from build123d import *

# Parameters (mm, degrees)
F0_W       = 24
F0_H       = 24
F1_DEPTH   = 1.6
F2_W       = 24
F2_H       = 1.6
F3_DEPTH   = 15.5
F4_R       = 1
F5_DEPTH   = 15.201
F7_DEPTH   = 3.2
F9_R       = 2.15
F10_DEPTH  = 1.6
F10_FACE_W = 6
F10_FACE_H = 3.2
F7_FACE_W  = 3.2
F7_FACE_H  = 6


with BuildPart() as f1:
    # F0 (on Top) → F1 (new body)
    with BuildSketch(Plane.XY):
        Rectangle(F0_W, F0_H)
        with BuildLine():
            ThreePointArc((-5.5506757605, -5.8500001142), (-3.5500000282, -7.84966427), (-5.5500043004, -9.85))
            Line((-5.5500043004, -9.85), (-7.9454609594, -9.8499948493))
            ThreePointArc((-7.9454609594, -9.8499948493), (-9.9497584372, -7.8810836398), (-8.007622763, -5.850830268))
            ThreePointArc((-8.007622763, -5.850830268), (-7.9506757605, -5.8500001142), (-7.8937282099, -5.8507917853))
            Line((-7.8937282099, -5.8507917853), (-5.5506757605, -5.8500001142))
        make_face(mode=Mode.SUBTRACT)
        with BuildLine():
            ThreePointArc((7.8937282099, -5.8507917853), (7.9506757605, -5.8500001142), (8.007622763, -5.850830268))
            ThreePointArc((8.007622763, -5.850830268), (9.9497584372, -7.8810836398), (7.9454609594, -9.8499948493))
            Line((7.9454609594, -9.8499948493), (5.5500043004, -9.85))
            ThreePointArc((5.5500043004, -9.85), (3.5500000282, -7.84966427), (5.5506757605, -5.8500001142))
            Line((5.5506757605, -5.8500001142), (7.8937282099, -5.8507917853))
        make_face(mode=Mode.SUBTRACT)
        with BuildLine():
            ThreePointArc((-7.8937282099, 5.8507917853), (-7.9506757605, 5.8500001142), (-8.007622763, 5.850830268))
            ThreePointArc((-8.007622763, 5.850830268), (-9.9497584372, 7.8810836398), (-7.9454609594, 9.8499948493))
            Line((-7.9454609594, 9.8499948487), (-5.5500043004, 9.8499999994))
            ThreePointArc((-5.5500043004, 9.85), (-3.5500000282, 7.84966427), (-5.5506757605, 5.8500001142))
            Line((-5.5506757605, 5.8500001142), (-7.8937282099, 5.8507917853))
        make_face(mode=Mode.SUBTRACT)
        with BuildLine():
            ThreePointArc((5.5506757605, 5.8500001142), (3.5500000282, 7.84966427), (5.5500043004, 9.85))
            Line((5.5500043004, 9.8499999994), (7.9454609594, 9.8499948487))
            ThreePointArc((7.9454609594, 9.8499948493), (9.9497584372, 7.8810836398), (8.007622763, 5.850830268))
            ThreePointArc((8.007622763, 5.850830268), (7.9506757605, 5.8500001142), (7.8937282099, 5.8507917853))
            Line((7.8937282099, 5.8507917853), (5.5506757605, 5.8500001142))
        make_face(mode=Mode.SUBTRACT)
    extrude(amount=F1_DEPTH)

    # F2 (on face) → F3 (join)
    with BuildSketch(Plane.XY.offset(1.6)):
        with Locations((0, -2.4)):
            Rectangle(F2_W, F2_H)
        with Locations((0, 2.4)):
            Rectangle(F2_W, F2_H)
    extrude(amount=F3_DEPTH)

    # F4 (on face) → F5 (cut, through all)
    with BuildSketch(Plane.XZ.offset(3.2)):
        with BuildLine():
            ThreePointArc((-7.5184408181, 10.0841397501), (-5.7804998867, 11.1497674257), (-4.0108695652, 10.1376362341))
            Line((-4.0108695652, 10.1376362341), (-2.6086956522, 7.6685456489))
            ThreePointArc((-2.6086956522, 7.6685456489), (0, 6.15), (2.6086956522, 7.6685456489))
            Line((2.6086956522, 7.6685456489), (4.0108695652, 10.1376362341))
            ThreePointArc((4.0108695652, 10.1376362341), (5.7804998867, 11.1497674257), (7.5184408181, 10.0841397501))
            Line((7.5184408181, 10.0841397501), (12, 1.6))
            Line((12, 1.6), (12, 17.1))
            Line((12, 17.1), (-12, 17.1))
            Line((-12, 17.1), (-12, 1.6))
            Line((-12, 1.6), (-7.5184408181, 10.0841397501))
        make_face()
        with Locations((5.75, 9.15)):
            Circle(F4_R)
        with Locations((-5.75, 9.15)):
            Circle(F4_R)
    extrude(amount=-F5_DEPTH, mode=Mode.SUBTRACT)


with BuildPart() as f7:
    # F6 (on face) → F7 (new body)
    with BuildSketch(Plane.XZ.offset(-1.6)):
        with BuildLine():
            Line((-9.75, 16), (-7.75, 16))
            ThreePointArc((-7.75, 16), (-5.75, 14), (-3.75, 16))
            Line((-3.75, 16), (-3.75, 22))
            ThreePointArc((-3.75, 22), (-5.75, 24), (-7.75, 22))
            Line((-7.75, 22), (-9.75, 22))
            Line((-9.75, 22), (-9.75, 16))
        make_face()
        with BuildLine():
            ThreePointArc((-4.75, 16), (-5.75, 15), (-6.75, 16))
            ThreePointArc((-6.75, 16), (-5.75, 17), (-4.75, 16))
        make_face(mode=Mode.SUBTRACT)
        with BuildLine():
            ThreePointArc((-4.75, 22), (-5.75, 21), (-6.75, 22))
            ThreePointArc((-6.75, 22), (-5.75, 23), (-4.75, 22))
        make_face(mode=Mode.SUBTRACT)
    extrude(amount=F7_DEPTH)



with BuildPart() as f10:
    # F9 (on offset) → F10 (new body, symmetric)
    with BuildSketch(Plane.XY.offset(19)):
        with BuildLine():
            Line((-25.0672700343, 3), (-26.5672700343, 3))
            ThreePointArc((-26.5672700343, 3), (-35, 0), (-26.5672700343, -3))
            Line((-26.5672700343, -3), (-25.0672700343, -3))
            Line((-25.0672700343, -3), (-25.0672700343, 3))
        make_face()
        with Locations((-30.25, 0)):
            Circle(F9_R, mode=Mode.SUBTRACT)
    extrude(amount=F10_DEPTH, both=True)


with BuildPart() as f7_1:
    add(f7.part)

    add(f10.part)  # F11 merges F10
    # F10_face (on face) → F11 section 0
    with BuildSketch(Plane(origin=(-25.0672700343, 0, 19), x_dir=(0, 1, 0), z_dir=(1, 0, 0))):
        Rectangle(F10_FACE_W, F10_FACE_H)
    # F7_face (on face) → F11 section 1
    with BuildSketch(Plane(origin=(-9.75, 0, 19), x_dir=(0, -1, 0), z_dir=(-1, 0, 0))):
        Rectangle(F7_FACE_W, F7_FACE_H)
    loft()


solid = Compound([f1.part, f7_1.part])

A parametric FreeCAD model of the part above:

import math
import FreeCAD as App
import Part
import Sketcher

V = App.Vector


def add_polygon(sketch, points):
    """Adds a closed chain of lines whose ends are joined by coincident constraints."""
    first, n = sketch.GeometryCount, len(points)
    for a, b in zip(points, points[1:] + points[:1]):
        sketch.addGeometry(Part.LineSegment(App.Vector(*a, 0), App.Vector(*b, 0)), False)
    for i in range(n):
        sketch.addConstraint(Sketcher.Constraint("Coincident", first + i, 2, first + (i + 1) % n, 1))

doc = App.newDocument("Part")
params = doc.addObject("Spreadsheet::Sheet", "Params")
for row, (alias, value) in enumerate([
    ("sketch1_radius", "2 mm"),
    ("sketch1_width", "24 mm"),
    ("pad1_length", "1.6 mm"),
    ("sketch2_width", "24 mm"),
    ("sketch2_height", "1.6 mm"),
    ("pad2_length", "15.5 mm"),
    ("sketch3_diameter", "2 mm"),
    ("sketch3_radius", "2 mm"),
    ("sketch3_radius2", "3 mm"),
    ("sketch3_width", "24 mm"),
    ("sketch3_height", "15.5 mm"),
    ("sketch4_diameter", "2 mm"),
    ("sketch4_radius", "2 mm"),
    ("sketch4_width", "2 mm"),
    ("sketch4_height", "6 mm"),
    ("pad3_length", "3.2 mm"),
    ("sketch5_diameter", "4.3 mm"),
    ("sketch5_height", "6 mm"),
    ("sketch5_radius", "4.75 mm"),
    ("sketch5_width", "1.5 mm"),
    ("pad4_length", "3.2 mm"),
    ("sketch6_width", "6 mm"),
    ("sketch6_height", "3.2 mm"),
    ("sketch7_height", "6 mm"),
    ("sketch7_width", "3.2 mm"),
], start=1):
    params.set(f"A{row}", alias)
    params.set(f"B{row}", "=" + value)
    params.setAlias(f"B{row}", alias)

body = doc.addObject("PartDesign::Body", "Body")

sketch1 = body.newObject("Sketcher::SketchObject", "Sketch")
sketch1.AttachmentSupport = (doc.getObject("XY_Plane"), [""])
sketch1.MapMode = "FlatFace"
add_polygon(sketch1, [(-12, 12), (-12, -12), (12, -12), (12, 12)])
sketch1.addGeometry(Part.LineSegment(V(-7.89, -5.85, 0), V(-5.55, -5.85, 0)), False)
sketch1.addGeometry(Part.ArcOfCircle(Part.Circle(V(-5.55, -7.85, 0), V(0, 0, 1), 2), math.radians(-90), math.radians(90)), False)
sketch1.addGeometry(Part.LineSegment(V(-5.55, -9.85, 0), V(-7.95, -9.85, 0)), False)
sketch1.addGeometry(Part.ArcOfCircle(Part.Circle(V(-7.95, -7.85, 0), V(0, 0, 1), 2), math.radians(92), math.radians(270)), False)
sketch1.addGeometry(Part.ArcOfCircle(Part.Circle(V(-7.95, -7.85, 0), V(0, 0, 1), 2), math.radians(88.39), math.radians(91.65)), False)
sketch1.addGeometry(Part.LineSegment(V(5.55, -5.85, 0), V(7.89, -5.85, 0)), False)
sketch1.addGeometry(Part.ArcOfCircle(Part.Circle(V(7.95, -7.85, 0), V(0, 0, 1), 2), math.radians(88.35), math.radians(91.61)), False)
sketch1.addGeometry(Part.ArcOfCircle(Part.Circle(V(7.95, -7.85, 0), V(0, 0, 1), 2), math.radians(-90), math.radians(88)), False)
sketch1.addGeometry(Part.LineSegment(V(7.95, -9.85, 0), V(5.55, -9.85, 0)), False)
sketch1.addGeometry(Part.ArcOfCircle(Part.Circle(V(5.55, -7.85, 0), V(0, 0, 1), 2), math.radians(90), math.radians(270)), False)
sketch1.addGeometry(Part.LineSegment(V(-5.55, 5.85, 0), V(-7.89, 5.85, 0)), False)
sketch1.addGeometry(Part.ArcOfCircle(Part.Circle(V(-7.95, 7.85, 0), V(0, 0, 1), 2), math.radians(-91.65), math.radians(-88.39)), False)
sketch1.addGeometry(Part.ArcOfCircle(Part.Circle(V(-7.95, 7.85, 0), V(0, 0, 1), 2), math.radians(90), math.radians(268)), False)
sketch1.addGeometry(Part.LineSegment(V(-7.95, 9.85, 0), V(-5.55, 9.85, 0)), False)
sketch1.addGeometry(Part.ArcOfCircle(Part.Circle(V(-5.55, 7.85, 0), V(0, 0, 1), 2), math.radians(-90), math.radians(90)), False)
sketch1.addGeometry(Part.LineSegment(V(7.89, 5.85, 0), V(5.55, 5.85, 0)), False)
sketch1.addGeometry(Part.ArcOfCircle(Part.Circle(V(5.55, 7.85, 0), V(0, 0, 1), 2), math.radians(90), math.radians(270)), False)
sketch1.addGeometry(Part.LineSegment(V(5.55, 9.85, 0), V(7.95, 9.85, 0)), False)
sketch1.addGeometry(Part.ArcOfCircle(Part.Circle(V(7.95, 7.85, 0), V(0, 0, 1), 2), math.radians(-88), math.radians(90)), False)
sketch1.addGeometry(Part.ArcOfCircle(Part.Circle(V(7.95, 7.85, 0), V(0, 0, 1), 2), math.radians(-91.61), math.radians(-88.35)), False)
sketch1.addConstraint(Sketcher.Constraint("Tangent", 4, 2, 5, 2))
sketch1.addConstraint(Sketcher.Constraint("Tangent", 5, 1, 6, 1))
sketch1.addConstraint(Sketcher.Constraint("Coincident", 6, 2, 7, 2))
sketch1.addConstraint(Sketcher.Constraint("Tangent", 7, 1, 8, 2))
sketch1.addConstraint(Sketcher.Constraint("Coincident", 8, 1, 4, 1))
sketch1.addConstraint(Sketcher.Constraint("Coincident", 9, 2, 10, 2))
sketch1.addConstraint(Sketcher.Constraint("Tangent", 10, 1, 11, 2))
sketch1.addConstraint(Sketcher.Constraint("Coincident", 11, 1, 12, 1))
sketch1.addConstraint(Sketcher.Constraint("Tangent", 12, 2, 13, 2))
sketch1.addConstraint(Sketcher.Constraint("Tangent", 13, 1, 9, 1))
sketch1.addConstraint(Sketcher.Constraint("Coincident", 14, 2, 15, 2))
sketch1.addConstraint(Sketcher.Constraint("Tangent", 15, 1, 16, 2))
sketch1.addConstraint(Sketcher.Constraint("Coincident", 16, 1, 17, 1))
sketch1.addConstraint(Sketcher.Constraint("Tangent", 17, 2, 18, 2))
sketch1.addConstraint(Sketcher.Constraint("Tangent", 18, 1, 14, 1))
sketch1.addConstraint(Sketcher.Constraint("Tangent", 19, 2, 20, 2))
sketch1.addConstraint(Sketcher.Constraint("Tangent", 20, 1, 21, 1))
sketch1.addConstraint(Sketcher.Constraint("Coincident", 21, 2, 22, 2))
sketch1.addConstraint(Sketcher.Constraint("Tangent", 22, 1, 23, 2))
sketch1.addConstraint(Sketcher.Constraint("Coincident", 23, 1, 19, 1))
sketch1.addConstraint(Sketcher.Constraint("Vertical", 0))
sketch1.addConstraint(Sketcher.Constraint("Horizontal", 1))
sketch1.addConstraint(Sketcher.Constraint("Vertical", 2))
sketch1.addConstraint(Sketcher.Constraint("Horizontal", 3))
sketch1.addConstraint(Sketcher.Constraint("Equal", 5, 7))
sketch1.addConstraint(Sketcher.Constraint("Equal", 7, 8))
sketch1.addConstraint(Sketcher.Constraint("Equal", 8, 10))
sketch1.addConstraint(Sketcher.Constraint("Equal", 10, 11))
sketch1.addConstraint(Sketcher.Constraint("Equal", 11, 13))
sketch1.addConstraint(Sketcher.Constraint("Equal", 13, 15))
sketch1.addConstraint(Sketcher.Constraint("Equal", 15, 16))
sketch1.addConstraint(Sketcher.Constraint("Equal", 16, 18))
sketch1.addConstraint(Sketcher.Constraint("Equal", 18, 20))
sketch1.addConstraint(Sketcher.Constraint("Equal", 20, 22))
sketch1.addConstraint(Sketcher.Constraint("Equal", 22, 23))
sketch1.addConstraint(Sketcher.Constraint("Symmetric", 10, 3, 15, 3, -1, 1))
sketch1.addConstraint(Sketcher.Constraint("Symmetric", 13, 3, 18, 3, -1, 1))
sketch1.addConstraint(Sketcher.Constraint("Symmetric", 5, 3, 20, 3, -1, 1))
sketch1.addConstraint(Sketcher.Constraint("Symmetric", 7, 3, 22, 3, -1, 1))
sketch1.addConstraint(Sketcher.Constraint("Symmetric", 0, 2, 2, 2, -1, 1))
sketch1.addConstraint(Sketcher.Constraint("Symmetric", 7, 3, 10, 3, -2))
sketch1.addConstraint(Sketcher.Constraint("Symmetric", 5, 3, 13, 3, -2))
sketch1.addConstraint(Sketcher.Constraint("Parallel", 9, 14))
sketch1.addConstraint(Sketcher.Constraint("Parallel", 4, 19))
sketch1.addConstraint(Sketcher.Constraint("Horizontal", 5, 3, 7, 3))
sketch1.addConstraint(Sketcher.Constraint("Horizontal", 8, 1, 9, 2))
sketch1.addConstraint(Sketcher.Constraint("Horizontal", 7, 1, 10, 1))
sketch1.addConstraint(Sketcher.Constraint("Horizontal", 15, 1, 22, 1))
sketch1.addConstraint(Sketcher.Constraint("Vertical", 7, 1, 15, 1))
sketch1.addConstraint(Sketcher.Constraint("Vertical", 6, 2, 16, 1))
sketch1.addConstraint(Sketcher.Constraint("Vertical", 11, 1, 21, 2))
sketch1.addConstraint(Sketcher.Constraint("Equal", 3, 0))
sketch1.addConstraint(Sketcher.Constraint("Equal", 6, 12))
sketch1.addConstraint(Sketcher.Constraint("Radius", 5, 2.0))
sketch1.addConstraint(Sketcher.Constraint("DistanceX", 1, 1, 1, 2, 24.0))
sketch1.addConstraint(Sketcher.Constraint("DistanceX", 7, 3, 5, 3, 2.4))
sketch1.addConstraint(Sketcher.Constraint("DistanceX", 5, 3, 10, 3, 13.5))
sketch1.addConstraint(Sketcher.Constraint("DistanceY", 7, 3, 15, 3, 15.7))
sketch1.addConstraint(Sketcher.Constraint("DistanceX", 6, 2, -1, 1, 7.945461))
sketch1.addConstraint(Sketcher.Constraint("DistanceY", 7, 1, -1, 1, 5.85083))
sketch1.addConstraint(Sketcher.Constraint("DistanceX", 8, 1, -1, 1, 7.893728))
sketch1.setExpression("Constraints[57]", "Params.sketch1_radius")
sketch1.setExpression("Constraints[58]", "Params.sketch1_width")
pad1 = body.newObject("PartDesign::Pad", "Pad")
pad1.Profile = sketch1
pad1.setExpression("Length", "Params.pad1_length")

sketch2 = body.newObject("Sketcher::SketchObject", "Sketch001")
sketch2.AttachmentSupport = (doc.getObject("XY_Plane"), [""])
sketch2.MapMode = "FlatFace"
sketch2.AttachmentOffset = App.Placement(V(0, 0, 1.6), App.Rotation())
add_polygon(sketch2, [(-12, -1.6), (-12, -3.2), (12, -3.2), (12, -1.6)])
add_polygon(sketch2, [(-12, 3.2), (-12, 1.6), (12, 1.6), (12, 3.2)])
sketch2.addConstraint(Sketcher.Constraint("Vertical", 0))
sketch2.addConstraint(Sketcher.Constraint("Horizontal", 1))
sketch2.addConstraint(Sketcher.Constraint("Vertical", 2))
sketch2.addConstraint(Sketcher.Constraint("Horizontal", 3))
sketch2.addConstraint(Sketcher.Constraint("Vertical", 4))
sketch2.addConstraint(Sketcher.Constraint("Horizontal", 5))
sketch2.addConstraint(Sketcher.Constraint("Vertical", 6))
sketch2.addConstraint(Sketcher.Constraint("Horizontal", 7))
sketch2.addConstraint(Sketcher.Constraint("Symmetric", 2, 2, 4, 2, -1, 1))
sketch2.addConstraint(Sketcher.Constraint("Symmetric", 0, 2, 6, 2, -1, 1))
sketch2.addConstraint(Sketcher.Constraint("Vertical", 3, 2, 4, 2))
sketch2.addConstraint(Sketcher.Constraint("DistanceX", 1, 1, 1, 2, 24.0))
sketch2.addConstraint(Sketcher.Constraint("DistanceY", 0, 2, 0, 1, 1.6))
sketch2.addConstraint(Sketcher.Constraint("DistanceY", 0, 2, -1, 1, 3.2))
sketch2.setExpression("Constraints[19]", "Params.sketch2_width")
sketch2.setExpression("Constraints[20]", "Params.sketch2_height")
pad2 = body.newObject("PartDesign::Pad", "Pad001")
pad2.Profile = sketch2
pad2.setExpression("Length", "Params.pad2_length")

sketch3 = body.newObject("Sketcher::SketchObject", "Sketch002")
sketch3.AttachmentSupport = (doc.getObject("XZ_Plane"), [""])
sketch3.MapMode = "FlatFace"
sketch3.AttachmentOffset = App.Placement(V(0, 0, 3.2), App.Rotation())
sketch3.addGeometry(Part.ArcOfCircle(Part.Circle(V(-5.8, 9.2, 0), V(0, 0, 1), 2), math.radians(30), math.radians(152)), False)
sketch3.addGeometry(Part.LineSegment(V(-4, 10.1, 0), V(-2.6, 7.7, 0)), False)
sketch3.addGeometry(Part.ArcOfCircle(Part.Circle(V(0, 9.2, 0), V(0, 0, 1), 3), math.radians(-150), math.radians(-30)), False)
sketch3.addGeometry(Part.LineSegment(V(2.6, 7.7, 0), V(4, 10.1, 0)), False)
sketch3.addGeometry(Part.ArcOfCircle(Part.Circle(V(5.8, 9.2, 0), V(0, 0, 1), 2), math.radians(28), math.radians(150)), False)
sketch3.addGeometry(Part.LineSegment(V(7.5, 10.1, 0), V(12, 1.6, 0)), False)
sketch3.addGeometry(Part.LineSegment(V(12, 1.6, 0), V(12, 17.1, 0)), False)
sketch3.addGeometry(Part.LineSegment(V(12, 17.1, 0), V(-12, 17.1, 0)), False)
sketch3.addGeometry(Part.LineSegment(V(-12, 17.1, 0), V(-12, 1.6, 0)), False)
sketch3.addGeometry(Part.LineSegment(V(-12, 1.6, 0), V(-7.5, 10.1, 0)), False)
sketch3.addGeometry(Part.Circle(V(5.8, 9.2, 0), V(0, 0, 1), 1), False)
sketch3.addGeometry(Part.Circle(V(-5.8, 9.2, 0), V(0, 0, 1), 1), False)
sketch3.addConstraint(Sketcher.Constraint("Tangent", 0, 1, 1, 1))
sketch3.addConstraint(Sketcher.Constraint("Tangent", 1, 2, 2, 1))
sketch3.addConstraint(Sketcher.Constraint("Tangent", 2, 2, 3, 1))
sketch3.addConstraint(Sketcher.Constraint("Tangent", 3, 2, 4, 2))
sketch3.addConstraint(Sketcher.Constraint("Tangent", 4, 1, 5, 1))
sketch3.addConstraint(Sketcher.Constraint("Coincident", 5, 2, 6, 1))
sketch3.addConstraint(Sketcher.Constraint("Coincident", 6, 2, 7, 1))
sketch3.addConstraint(Sketcher.Constraint("Coincident", 7, 2, 8, 1))
sketch3.addConstraint(Sketcher.Constraint("Coincident", 8, 2, 9, 1))
sketch3.addConstraint(Sketcher.Constraint("Tangent", 9, 2, 0, 2))
sketch3.addConstraint(Sketcher.Constraint("Vertical", 6))
sketch3.addConstraint(Sketcher.Constraint("Horizontal", 7))
sketch3.addConstraint(Sketcher.Constraint("Vertical", 8))
sketch3.addConstraint(Sketcher.Constraint("Coincident", 10, 3, 4, 3))
sketch3.addConstraint(Sketcher.Constraint("Coincident", 11, 3, 0, 3))
sketch3.addConstraint(Sketcher.Constraint("Equal", 0, 4))
sketch3.addConstraint(Sketcher.Constraint("Equal", 10, 11))
sketch3.addConstraint(Sketcher.Constraint("Symmetric", 0, 3, 4, 3, -2))
sketch3.addConstraint(Sketcher.Constraint("Symmetric", 5, 2, 8, 2, -2))
sketch3.addConstraint(Sketcher.Constraint("PointOnObject", 2, 3, -2))
sketch3.addConstraint(Sketcher.Constraint("Horizontal", 0, 3, 2, 3))
sketch3.addConstraint(Sketcher.Constraint("Diameter", 10, 2.0))
sketch3.addConstraint(Sketcher.Constraint("Radius", 0, 2.0))
sketch3.addConstraint(Sketcher.Constraint("Radius", 2, 3.0))
sketch3.addConstraint(Sketcher.Constraint("DistanceX", 7, 2, 7, 1, 24.0))
sketch3.addConstraint(Sketcher.Constraint("DistanceY", 6, 1, 6, 2, 15.5))
sketch3.addConstraint(Sketcher.Constraint("DistanceY", -1, 1, 5, 2, 1.6))
sketch3.addConstraint(Sketcher.Constraint("DistanceX", 0, 3, 4, 3, 11.5))
sketch3.addConstraint(Sketcher.Constraint("DistanceY", -1, 1, 0, 3, 9.15))
sketch3.setExpression("Constraints[21]", "Params.sketch3_diameter")
sketch3.setExpression("Constraints[22]", "Params.sketch3_radius")
sketch3.setExpression("Constraints[23]", "Params.sketch3_radius2")
sketch3.setExpression("Constraints[24]", "Params.sketch3_width")
sketch3.setExpression("Constraints[25]", "Params.sketch3_height")
pocket1 = body.newObject("PartDesign::Pocket", "Pocket")
pocket1.Profile = sketch3
pocket1.Type = "ThroughAll"
body2 = doc.addObject("PartDesign::Body", "Body001")

sketch4 = body2.newObject("Sketcher::SketchObject", "Sketch003")
sketch4.AttachmentSupport = (doc.getObject("XZ_Plane001"), [""])
sketch4.MapMode = "FlatFace"
sketch4.AttachmentOffset = App.Placement(V(0, 0, -1.6), App.Rotation())
sketch4.addGeometry(Part.LineSegment(V(-9.8, 16, 0), V(-7.8, 16, 0)), False)
sketch4.addGeometry(Part.ArcOfCircle(Part.Circle(V(-5.8, 16, 0), V(0, 0, 1), 2), math.radians(180), math.radians(360)), False)
sketch4.addGeometry(Part.LineSegment(V(-3.8, 16, 0), V(-3.8, 22, 0)), False)
sketch4.addGeometry(Part.ArcOfCircle(Part.Circle(V(-5.8, 22, 0), V(0, 0, 1), 2), math.radians(0), math.radians(180)), False)
sketch4.addGeometry(Part.LineSegment(V(-7.8, 22, 0), V(-9.8, 22, 0)), False)
sketch4.addGeometry(Part.LineSegment(V(-9.8, 22, 0), V(-9.8, 16, 0)), False)
sketch4.addGeometry(Part.Circle(V(-5.8, 16, 0), V(0, 0, 1), 1), False)
sketch4.addGeometry(Part.Circle(V(-5.8, 22, 0), V(0, 0, 1), 1), False)
sketch4.addConstraint(Sketcher.Constraint("Coincident", 0, 2, 1, 1))
sketch4.addConstraint(Sketcher.Constraint("Tangent", 1, 2, 2, 1))
sketch4.addConstraint(Sketcher.Constraint("Tangent", 2, 2, 3, 1))
sketch4.addConstraint(Sketcher.Constraint("Coincident", 3, 2, 4, 1))
sketch4.addConstraint(Sketcher.Constraint("Coincident", 4, 2, 5, 1))
sketch4.addConstraint(Sketcher.Constraint("Coincident", 5, 2, 0, 1))
sketch4.addConstraint(Sketcher.Constraint("Horizontal", 0))
sketch4.addConstraint(Sketcher.Constraint("Vertical", 2))
sketch4.addConstraint(Sketcher.Constraint("Horizontal", 4))
sketch4.addConstraint(Sketcher.Constraint("Vertical", 5))
sketch4.addConstraint(Sketcher.Constraint("Coincident", 6, 3, 1, 3))
sketch4.addConstraint(Sketcher.Constraint("Coincident", 7, 3, 3, 3))
sketch4.addConstraint(Sketcher.Constraint("Equal", 1, 3))
sketch4.addConstraint(Sketcher.Constraint("Equal", 6, 7))
sketch4.addConstraint(Sketcher.Constraint("Horizontal", 6, 3, 0, 2))
sketch4.addConstraint(Sketcher.Constraint("Horizontal", 2, 2, 3, 2))
sketch4.addConstraint(Sketcher.Constraint("Diameter", 6, 2.0))
sketch4.addConstraint(Sketcher.Constraint("Radius", 1, 2.0))
sketch4.addConstraint(Sketcher.Constraint("DistanceX", 0, 1, 0, 2, 2.0))
sketch4.addConstraint(Sketcher.Constraint("DistanceY", 2, 1, 2, 2, 6.0))
sketch4.addConstraint(Sketcher.Constraint("DistanceY", -1, 1, 1, 3, 16.0))
sketch4.addConstraint(Sketcher.Constraint("DistanceX", 1, 3, -1, 1, 5.75))
sketch4.setExpression("Constraints[16]", "Params.sketch4_diameter")
sketch4.setExpression("Constraints[17]", "Params.sketch4_radius")
sketch4.setExpression("Constraints[18]", "Params.sketch4_width")
sketch4.setExpression("Constraints[19]", "Params.sketch4_height")
pad3 = body2.newObject("PartDesign::Pad", "Pad002")
pad3.Profile = sketch4
pad3.setExpression("Length", "Params.pad3_length")
body3 = doc.addObject("PartDesign::Body", "Body002")

sketch5 = body3.newObject("Sketcher::SketchObject", "Sketch004")
sketch5.AttachmentSupport = (doc.getObject("XY_Plane002"), [""])
sketch5.MapMode = "FlatFace"
sketch5.AttachmentOffset = App.Placement(V(0, 0, 19), App.Rotation())
sketch5.addGeometry(Part.LineSegment(V(-25.1, 3, 0), V(-26.6, 3, 0)), False)
sketch5.addGeometry(Part.ArcOfCircle(Part.Circle(V(-30.2, 0, 0), V(0, 0, 1), 4.8), math.radians(39), math.radians(321)), False)
sketch5.addGeometry(Part.LineSegment(V(-26.6, -3, 0), V(-25.1, -3, 0)), False)
sketch5.addGeometry(Part.LineSegment(V(-25.1, -3, 0), V(-25.1, 3, 0)), False)
sketch5.addGeometry(Part.Circle(V(-30.2, 0, 0), V(0, 0, 1), 2.1), False)
sketch5.addConstraint(Sketcher.Constraint("Coincident", 0, 2, 1, 1))
sketch5.addConstraint(Sketcher.Constraint("Coincident", 1, 2, 2, 1))
sketch5.addConstraint(Sketcher.Constraint("Coincident", 2, 2, 3, 1))
sketch5.addConstraint(Sketcher.Constraint("Coincident", 3, 2, 0, 1))
sketch5.addConstraint(Sketcher.Constraint("Horizontal", 0))
sketch5.addConstraint(Sketcher.Constraint("Horizontal", 2))
sketch5.addConstraint(Sketcher.Constraint("Vertical", 3))
sketch5.addConstraint(Sketcher.Constraint("Coincident", 4, 3, 1, 3))
sketch5.addConstraint(Sketcher.Constraint("Symmetric", 0, 2, 1, 2, -1))
sketch5.addConstraint(Sketcher.Constraint("Diameter", 4, 4.3))
sketch5.addConstraint(Sketcher.Constraint("DistanceY", 3, 1, 3, 2, 6.0))
sketch5.addConstraint(Sketcher.Constraint("Radius", 1, 4.75))
sketch5.addConstraint(Sketcher.Constraint("DistanceX", 0, 2, 0, 1, 1.5))
sketch5.addConstraint(Sketcher.Constraint("DistanceX", 1, 3, -1, 1, 30.25))
sketch5.setExpression("Constraints[9]", "Params.sketch5_diameter")
sketch5.setExpression("Constraints[10]", "Params.sketch5_height")
sketch5.setExpression("Constraints[11]", "Params.sketch5_radius")
sketch5.setExpression("Constraints[12]", "Params.sketch5_width")
pad4 = body3.newObject("PartDesign::Pad", "Pad003")
pad4.Profile = sketch5
pad4.setExpression("Length", "Params.pad4_length")
pad4.Midplane = True
body2.AllowCompound = True
doc.recompute()

boolean = body2.newObject("PartDesign::Boolean", "Boolean")
boolean.Type = "Fuse"
boolean.addObjects([body3])

sketch6 = body2.newObject("Sketcher::SketchObject", "Sketch005")
sketch6.AttachmentSupport = (doc.getObject("YZ_Plane001"), [""])
sketch6.MapMode = "FlatFace"
sketch6.AttachmentOffset = App.Placement(V(0, 0, -25.06727), App.Rotation())
add_polygon(sketch6, [(-3, 20.6), (-3, 17.4), (3, 17.4), (3, 20.6)])
sketch6.addConstraint(Sketcher.Constraint("Vertical", 0))
sketch6.addConstraint(Sketcher.Constraint("Horizontal", 1))
sketch6.addConstraint(Sketcher.Constraint("Vertical", 2))
sketch6.addConstraint(Sketcher.Constraint("Horizontal", 3))
sketch6.addConstraint(Sketcher.Constraint("DistanceX", 1, 1, 1, 2, 6.0))
sketch6.addConstraint(Sketcher.Constraint("DistanceY", 0, 2, 0, 1, 3.2))
sketch6.addConstraint(Sketcher.Constraint("DistanceX", 0, 2, -1, 1, 3.0))
sketch6.addConstraint(Sketcher.Constraint("DistanceY", -1, 1, 0, 2, 17.4))
sketch6.setExpression("Constraints[8]", "Params.sketch6_width")
sketch6.setExpression("Constraints[9]", "Params.sketch6_height")

sketch7 = body2.newObject("Sketcher::SketchObject", "Sketch006")
sketch7.AttachmentSupport = (doc.getObject("YZ_Plane001"), [""])
sketch7.MapMode = "FlatFace"
sketch7.AttachmentOffset = App.Placement(V(0, 0, -9.75), App.Rotation())
add_polygon(sketch7, [(1.6, 22), (1.6, 16), (-1.6, 16), (-1.6, 22)])
sketch7.addConstraint(Sketcher.Constraint("Vertical", 0))
sketch7.addConstraint(Sketcher.Constraint("Horizontal", 1))
sketch7.addConstraint(Sketcher.Constraint("Vertical", 2))
sketch7.addConstraint(Sketcher.Constraint("Horizontal", 3))
sketch7.addConstraint(Sketcher.Constraint("DistanceY", 0, 2, 0, 1, 6.0))
sketch7.addConstraint(Sketcher.Constraint("DistanceX", 1, 2, 1, 1, 3.2))
sketch7.addConstraint(Sketcher.Constraint("DistanceY", -1, 1, 0, 2, 16.0))
sketch7.addConstraint(Sketcher.Constraint("DistanceX", -1, 1, 0, 2, 1.6))
sketch7.setExpression("Constraints[8]", "Params.sketch7_height")
sketch7.setExpression("Constraints[9]", "Params.sketch7_width")

additiveloft = body2.newObject("PartDesign::AdditiveLoft", "AdditiveLoft")
additiveloft.Profile = sketch6
additiveloft.Sections = [sketch7]

doc.recompute()
